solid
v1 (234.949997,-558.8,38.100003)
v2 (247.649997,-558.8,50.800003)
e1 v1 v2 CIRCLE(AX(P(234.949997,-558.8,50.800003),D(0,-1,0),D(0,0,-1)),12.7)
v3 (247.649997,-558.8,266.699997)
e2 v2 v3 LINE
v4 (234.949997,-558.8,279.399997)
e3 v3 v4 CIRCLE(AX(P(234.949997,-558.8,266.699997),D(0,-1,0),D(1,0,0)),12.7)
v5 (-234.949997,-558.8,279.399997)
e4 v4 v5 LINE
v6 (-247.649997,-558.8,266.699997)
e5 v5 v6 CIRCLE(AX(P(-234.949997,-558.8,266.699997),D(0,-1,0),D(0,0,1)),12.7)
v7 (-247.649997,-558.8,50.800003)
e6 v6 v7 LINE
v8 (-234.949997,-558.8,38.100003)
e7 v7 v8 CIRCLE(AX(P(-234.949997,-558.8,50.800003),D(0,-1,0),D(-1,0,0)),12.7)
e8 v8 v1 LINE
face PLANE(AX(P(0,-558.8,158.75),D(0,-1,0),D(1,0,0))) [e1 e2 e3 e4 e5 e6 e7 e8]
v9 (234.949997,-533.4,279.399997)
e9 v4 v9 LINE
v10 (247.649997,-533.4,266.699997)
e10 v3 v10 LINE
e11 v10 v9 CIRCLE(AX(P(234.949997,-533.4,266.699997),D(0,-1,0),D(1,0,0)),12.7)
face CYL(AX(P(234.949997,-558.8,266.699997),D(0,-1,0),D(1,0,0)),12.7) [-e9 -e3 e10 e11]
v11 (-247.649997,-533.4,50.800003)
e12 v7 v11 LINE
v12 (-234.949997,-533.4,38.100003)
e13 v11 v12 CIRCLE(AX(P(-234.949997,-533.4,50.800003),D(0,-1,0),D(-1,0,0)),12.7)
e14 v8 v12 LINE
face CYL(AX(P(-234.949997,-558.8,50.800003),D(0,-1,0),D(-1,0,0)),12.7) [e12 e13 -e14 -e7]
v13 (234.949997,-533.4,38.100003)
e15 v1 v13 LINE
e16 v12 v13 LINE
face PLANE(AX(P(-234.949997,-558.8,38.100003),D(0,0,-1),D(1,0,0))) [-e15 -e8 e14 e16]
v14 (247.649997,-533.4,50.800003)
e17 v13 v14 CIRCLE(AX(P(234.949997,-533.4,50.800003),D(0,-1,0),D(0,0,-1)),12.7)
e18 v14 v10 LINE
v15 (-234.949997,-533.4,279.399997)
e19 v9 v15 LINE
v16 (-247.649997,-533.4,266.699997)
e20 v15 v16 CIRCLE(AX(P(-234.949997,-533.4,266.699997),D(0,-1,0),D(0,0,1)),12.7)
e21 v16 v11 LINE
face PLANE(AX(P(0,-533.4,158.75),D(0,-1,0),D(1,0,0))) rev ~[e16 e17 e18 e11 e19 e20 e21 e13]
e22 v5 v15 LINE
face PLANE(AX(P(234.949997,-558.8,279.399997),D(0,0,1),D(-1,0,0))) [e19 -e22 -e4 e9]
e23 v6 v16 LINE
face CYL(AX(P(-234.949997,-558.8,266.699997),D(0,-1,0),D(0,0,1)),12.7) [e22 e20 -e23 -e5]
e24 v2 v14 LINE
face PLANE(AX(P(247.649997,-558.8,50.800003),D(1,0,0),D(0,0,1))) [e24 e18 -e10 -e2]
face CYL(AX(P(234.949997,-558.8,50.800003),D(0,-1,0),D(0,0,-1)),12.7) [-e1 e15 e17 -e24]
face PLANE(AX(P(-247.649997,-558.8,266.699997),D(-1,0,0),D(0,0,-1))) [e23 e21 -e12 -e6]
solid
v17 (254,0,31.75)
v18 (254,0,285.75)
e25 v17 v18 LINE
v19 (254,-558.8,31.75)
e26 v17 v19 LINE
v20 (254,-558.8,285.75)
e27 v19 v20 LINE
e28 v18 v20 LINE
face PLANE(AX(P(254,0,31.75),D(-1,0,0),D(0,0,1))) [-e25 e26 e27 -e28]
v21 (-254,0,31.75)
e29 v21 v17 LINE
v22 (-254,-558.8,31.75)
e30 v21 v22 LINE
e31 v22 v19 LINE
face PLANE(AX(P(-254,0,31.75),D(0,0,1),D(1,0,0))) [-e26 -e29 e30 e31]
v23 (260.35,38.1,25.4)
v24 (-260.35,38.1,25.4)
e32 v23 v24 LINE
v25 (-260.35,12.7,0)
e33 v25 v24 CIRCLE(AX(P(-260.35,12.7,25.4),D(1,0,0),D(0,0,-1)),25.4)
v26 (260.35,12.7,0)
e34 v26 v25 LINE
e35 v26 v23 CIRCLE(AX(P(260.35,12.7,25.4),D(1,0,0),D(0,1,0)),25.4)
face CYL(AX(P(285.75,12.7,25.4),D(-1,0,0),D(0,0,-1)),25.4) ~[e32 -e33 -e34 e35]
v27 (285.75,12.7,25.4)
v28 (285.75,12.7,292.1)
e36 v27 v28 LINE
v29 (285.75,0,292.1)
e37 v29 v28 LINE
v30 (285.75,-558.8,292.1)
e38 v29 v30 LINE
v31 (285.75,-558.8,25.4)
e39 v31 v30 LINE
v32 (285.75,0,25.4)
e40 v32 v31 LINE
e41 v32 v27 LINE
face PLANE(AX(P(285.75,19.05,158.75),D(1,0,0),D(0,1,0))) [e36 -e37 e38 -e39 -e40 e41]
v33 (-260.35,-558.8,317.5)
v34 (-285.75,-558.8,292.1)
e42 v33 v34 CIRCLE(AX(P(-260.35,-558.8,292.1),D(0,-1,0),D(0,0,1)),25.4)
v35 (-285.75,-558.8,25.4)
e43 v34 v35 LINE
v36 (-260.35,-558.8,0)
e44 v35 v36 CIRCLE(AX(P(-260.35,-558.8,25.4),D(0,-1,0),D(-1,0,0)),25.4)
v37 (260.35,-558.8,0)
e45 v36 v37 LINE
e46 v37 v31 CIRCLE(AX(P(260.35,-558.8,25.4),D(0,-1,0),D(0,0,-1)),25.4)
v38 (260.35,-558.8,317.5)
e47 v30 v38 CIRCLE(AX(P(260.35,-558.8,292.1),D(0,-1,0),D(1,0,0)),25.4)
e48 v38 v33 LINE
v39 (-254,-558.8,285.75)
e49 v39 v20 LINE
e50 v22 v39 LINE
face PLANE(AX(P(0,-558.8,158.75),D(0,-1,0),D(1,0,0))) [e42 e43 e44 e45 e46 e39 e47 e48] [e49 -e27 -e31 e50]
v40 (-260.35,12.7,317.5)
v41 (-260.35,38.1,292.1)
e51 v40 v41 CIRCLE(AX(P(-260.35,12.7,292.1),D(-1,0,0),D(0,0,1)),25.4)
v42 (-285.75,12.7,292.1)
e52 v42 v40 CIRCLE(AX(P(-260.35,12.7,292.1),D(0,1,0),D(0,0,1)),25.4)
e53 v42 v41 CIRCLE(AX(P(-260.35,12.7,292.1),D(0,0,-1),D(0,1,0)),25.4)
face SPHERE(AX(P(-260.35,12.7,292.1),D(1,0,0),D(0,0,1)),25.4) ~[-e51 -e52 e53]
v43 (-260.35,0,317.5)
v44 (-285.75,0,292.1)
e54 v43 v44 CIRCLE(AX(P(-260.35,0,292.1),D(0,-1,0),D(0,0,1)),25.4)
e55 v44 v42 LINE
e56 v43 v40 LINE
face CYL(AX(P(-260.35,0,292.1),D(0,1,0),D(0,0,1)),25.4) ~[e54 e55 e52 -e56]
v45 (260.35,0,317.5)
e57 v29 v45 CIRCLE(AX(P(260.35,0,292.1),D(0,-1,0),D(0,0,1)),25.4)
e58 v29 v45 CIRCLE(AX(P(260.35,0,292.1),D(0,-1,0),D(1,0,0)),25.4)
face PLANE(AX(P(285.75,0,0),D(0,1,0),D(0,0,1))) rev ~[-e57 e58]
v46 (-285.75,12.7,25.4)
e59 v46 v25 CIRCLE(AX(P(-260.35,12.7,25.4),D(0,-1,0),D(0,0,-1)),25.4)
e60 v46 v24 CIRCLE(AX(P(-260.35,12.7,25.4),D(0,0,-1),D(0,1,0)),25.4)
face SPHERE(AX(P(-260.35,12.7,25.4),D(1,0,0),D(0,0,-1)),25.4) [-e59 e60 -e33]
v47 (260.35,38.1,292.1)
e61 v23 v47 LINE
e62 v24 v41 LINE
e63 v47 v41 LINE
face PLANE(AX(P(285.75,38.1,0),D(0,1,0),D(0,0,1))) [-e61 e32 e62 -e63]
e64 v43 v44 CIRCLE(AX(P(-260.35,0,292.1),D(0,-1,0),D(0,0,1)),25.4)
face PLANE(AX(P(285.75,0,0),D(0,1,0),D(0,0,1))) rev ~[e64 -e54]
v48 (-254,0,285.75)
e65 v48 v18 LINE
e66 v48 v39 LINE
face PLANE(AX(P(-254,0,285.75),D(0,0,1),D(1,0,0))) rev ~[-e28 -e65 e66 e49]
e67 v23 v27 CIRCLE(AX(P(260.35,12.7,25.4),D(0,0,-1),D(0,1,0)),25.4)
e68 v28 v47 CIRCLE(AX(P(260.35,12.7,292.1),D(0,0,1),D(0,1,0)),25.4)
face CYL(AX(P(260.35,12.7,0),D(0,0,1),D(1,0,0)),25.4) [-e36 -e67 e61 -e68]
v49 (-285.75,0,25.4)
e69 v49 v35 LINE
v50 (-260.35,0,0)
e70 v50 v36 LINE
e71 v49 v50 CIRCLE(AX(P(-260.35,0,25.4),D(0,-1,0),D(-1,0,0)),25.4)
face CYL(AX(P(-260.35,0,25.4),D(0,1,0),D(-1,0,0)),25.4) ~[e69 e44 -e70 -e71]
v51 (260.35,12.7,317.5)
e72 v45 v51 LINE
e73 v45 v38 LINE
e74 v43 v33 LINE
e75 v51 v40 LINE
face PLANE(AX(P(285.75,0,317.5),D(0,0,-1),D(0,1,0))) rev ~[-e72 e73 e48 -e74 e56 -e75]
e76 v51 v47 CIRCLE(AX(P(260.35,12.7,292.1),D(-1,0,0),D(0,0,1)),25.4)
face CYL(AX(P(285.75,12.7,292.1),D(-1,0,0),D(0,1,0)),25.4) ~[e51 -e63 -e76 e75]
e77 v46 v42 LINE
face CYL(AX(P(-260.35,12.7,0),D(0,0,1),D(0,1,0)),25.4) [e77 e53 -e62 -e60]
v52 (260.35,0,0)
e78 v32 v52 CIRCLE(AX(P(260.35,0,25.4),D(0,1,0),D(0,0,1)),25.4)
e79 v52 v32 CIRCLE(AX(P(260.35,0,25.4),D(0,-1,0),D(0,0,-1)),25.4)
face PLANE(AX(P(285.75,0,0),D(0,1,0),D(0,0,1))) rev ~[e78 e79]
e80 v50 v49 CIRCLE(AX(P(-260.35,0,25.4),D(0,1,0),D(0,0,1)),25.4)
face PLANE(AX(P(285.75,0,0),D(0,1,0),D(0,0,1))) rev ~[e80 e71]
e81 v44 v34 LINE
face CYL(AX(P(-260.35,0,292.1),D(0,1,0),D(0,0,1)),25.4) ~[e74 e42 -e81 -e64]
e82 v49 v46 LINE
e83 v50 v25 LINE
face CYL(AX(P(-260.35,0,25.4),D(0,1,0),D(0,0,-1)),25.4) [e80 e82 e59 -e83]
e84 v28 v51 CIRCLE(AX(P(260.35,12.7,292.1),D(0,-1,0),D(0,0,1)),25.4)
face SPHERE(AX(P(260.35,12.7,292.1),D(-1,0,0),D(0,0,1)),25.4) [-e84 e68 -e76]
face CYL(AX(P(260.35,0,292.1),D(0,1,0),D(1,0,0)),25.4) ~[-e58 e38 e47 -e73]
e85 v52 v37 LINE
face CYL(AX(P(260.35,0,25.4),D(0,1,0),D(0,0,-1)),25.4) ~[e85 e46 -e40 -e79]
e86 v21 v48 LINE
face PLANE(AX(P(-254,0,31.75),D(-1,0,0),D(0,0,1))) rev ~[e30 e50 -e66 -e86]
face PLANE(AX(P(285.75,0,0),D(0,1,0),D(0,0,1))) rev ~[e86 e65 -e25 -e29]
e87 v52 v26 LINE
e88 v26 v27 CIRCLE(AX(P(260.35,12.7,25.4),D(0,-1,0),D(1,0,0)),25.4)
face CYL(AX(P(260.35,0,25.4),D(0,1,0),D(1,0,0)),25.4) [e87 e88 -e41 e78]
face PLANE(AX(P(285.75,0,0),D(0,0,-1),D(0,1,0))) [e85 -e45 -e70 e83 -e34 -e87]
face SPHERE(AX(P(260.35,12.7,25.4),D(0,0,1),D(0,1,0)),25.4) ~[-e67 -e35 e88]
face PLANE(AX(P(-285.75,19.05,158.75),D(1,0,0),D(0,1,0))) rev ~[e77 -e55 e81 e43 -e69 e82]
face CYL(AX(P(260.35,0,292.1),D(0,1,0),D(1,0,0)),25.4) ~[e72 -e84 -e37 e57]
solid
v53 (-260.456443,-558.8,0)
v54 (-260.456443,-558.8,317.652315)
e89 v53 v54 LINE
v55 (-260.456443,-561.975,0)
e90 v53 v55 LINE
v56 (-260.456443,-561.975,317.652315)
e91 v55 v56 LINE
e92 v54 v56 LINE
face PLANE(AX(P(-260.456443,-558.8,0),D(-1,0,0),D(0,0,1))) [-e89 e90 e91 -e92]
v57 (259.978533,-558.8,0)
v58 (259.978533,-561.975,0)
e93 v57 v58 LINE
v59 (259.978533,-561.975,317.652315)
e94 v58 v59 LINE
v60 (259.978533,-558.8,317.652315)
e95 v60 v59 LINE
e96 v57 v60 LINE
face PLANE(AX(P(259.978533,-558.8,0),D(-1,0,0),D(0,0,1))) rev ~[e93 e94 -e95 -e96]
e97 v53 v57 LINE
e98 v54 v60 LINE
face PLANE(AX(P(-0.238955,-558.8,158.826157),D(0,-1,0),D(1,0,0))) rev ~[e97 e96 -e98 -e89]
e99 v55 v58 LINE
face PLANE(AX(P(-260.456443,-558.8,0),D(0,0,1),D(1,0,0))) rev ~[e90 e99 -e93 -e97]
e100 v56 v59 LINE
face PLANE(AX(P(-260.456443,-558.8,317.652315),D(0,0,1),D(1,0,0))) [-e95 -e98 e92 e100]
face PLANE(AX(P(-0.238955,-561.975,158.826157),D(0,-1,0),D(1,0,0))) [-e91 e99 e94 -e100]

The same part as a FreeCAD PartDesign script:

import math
import FreeCAD as App
import Part
import Sketcher
from FreeCAD import Vector
Q = App.Units.Quantity


def edges_at(feature, points):
    """Names of the edges that pass closest to the given points."""
    edges = feature.Shape.Edges
    near = lambda p: min(range(len(edges)), key=lambda i: edges[i].distToShape(Part.Vertex(*p))[0])
    return sorted({f"Edge{near(p) + 1}" for p in points})


def add_polygon(sketch, points):
    """Adds a closed chain of lines whose ends are joined by coincident constraints."""
    first, n = sketch.GeometryCount, len(points)
    for a, b in zip(points, points[1:] + points[:1]):
        sketch.addGeometry(Part.LineSegment(App.Vector(*a, 0), App.Vector(*b, 0)), False)
    for i in range(n):
        sketch.addConstraint(Sketcher.Constraint("Coincident", first + i, 2, first + (i + 1) % n, 1))

doc = App.newDocument("Part")
params = doc.addObject("Spreadsheet::Sheet", "Params")
for row, (alias, value) in enumerate([
    ("sketch1_radius", "1 in"),
    ("sketch1_width", "20 in"),
    ("sketch1_height", "10 in"),
    ("sketch1_width2", "20.5 in"),
    ("sketch1_height2", "10.5 in"),
    ("pad1_length", "22 in"),
    ("sketch2_width", "1.5 in"),
    ("sketch2_height", "12.5 in"),
    ("pad2_length", "22.5 in"),
    ("fillet_radius", "1 in"),
    ("sketch3_radius", "0.5 in"),
    ("sketch3_width", "18.4999998 in"),
    ("sketch3_height", "8.4999998 in"),
    ("pad3_length", "1 in"),
    ("pad4_length", "0.125 in"),
], start=1):
    params.set(f"A{row}", alias)
    params.set(f"B{row}", "=" + value)
    params.setAlias(f"B{row}", alias)

body = doc.addObject("PartDesign::Body", "Body")

# Sketch on XZ plane
sketch1 = doc.addObject("Sketcher::SketchObject", "Sketch")
body.addObject(sketch1)
sketch1.AttachmentSupport = (doc.XZ_Plane, [""])
sketch1.MapMode = "FlatFace"
sketch1.addGeometry(Part.ArcOfCircle(Part.Circle(Vector(260.35, 292.1, 0), Vector(0, 0, 1), 25.4), math.radians(0), math.radians(90)), False)  # 0
sketch1.addGeometry(Part.LineSegment(Vector(260.35, 317.5, 0), Vector(-260.35, 317.5, 0)), False)  # 1
sketch1.addGeometry(Part.ArcOfCircle(Part.Circle(Vector(-260.35, 292.1, 0), Vector(0, 0, 1), 25.4), math.radians(90), math.radians(180)), False)  # 2
sketch1.addGeometry(Part.LineSegment(Vector(-285.75, 292.1, 0), Vector(-285.75, 25.4, 0)), False)  # 3
sketch1.addGeometry(Part.ArcOfCircle(Part.Circle(Vector(-260.35, 25.4, 0), Vector(0, 0, 1), 25.4), math.radians(180), math.radians(270)), False)  # 4
sketch1.addGeometry(Part.LineSegment(Vector(-260.35, 0, 0), Vector(260.35, 0, 0)), False)  # 5
sketch1.addGeometry(Part.ArcOfCircle(Part.Circle(Vector(260.35, 25.4, 0), Vector(0, 0, 1), 25.4), math.radians(-90), math.radians(0)), False)  # 6
sketch1.addGeometry(Part.LineSegment(Vector(285.75, 25.4, 0), Vector(285.75, 292.1, 0)), False)  # 7
add_polygon(sketch1, [(254, 31.75), (-254, 31.75), (-254, 285.75), (254, 285.75)])  # lines 8-11
sketch1.addConstraint([
    Sketcher.Constraint("Tangent", 0, 2, 1, 1),
    Sketcher.Constraint("Tangent", 1, 2, 2, 1),
    Sketcher.Constraint("Tangent", 2, 2, 3, 1),
    Sketcher.Constraint("Tangent", 3, 2, 4, 1),
    Sketcher.Constraint("Tangent", 4, 2, 5, 1),
    Sketcher.Constraint("Tangent", 5, 2, 6, 1),
    Sketcher.Constraint("Tangent", 6, 2, 7, 1),
    Sketcher.Constraint("Tangent", 7, 2, 0, 1),
    Sketcher.Constraint("Horizontal", 1),
    Sketcher.Constraint("Vertical", 3),
    Sketcher.Constraint("Horizontal", 5),
    Sketcher.Constraint("Vertical", 7),
    Sketcher.Constraint("Horizontal", 8),
    Sketcher.Constraint("Vertical", 9),
    Sketcher.Constraint("Horizontal", 10),
    Sketcher.Constraint("Vertical", 11),
    Sketcher.Constraint("Equal", 0, 2),
    Sketcher.Constraint("Equal", 2, 4),
    Sketcher.Constraint("Equal", 4, 6),
    Sketcher.Constraint("Symmetric", 4, 2, 5, 2, -1, 1),
    Sketcher.Constraint("Radius", 0, Q("1 in")),
    Sketcher.Constraint("DistanceX", 8, 2, 8, 1, Q("20 in")),
    Sketcher.Constraint("DistanceY", 9, 1, 9, 2, Q("10 in")),
    Sketcher.Constraint("DistanceX", 1, 2, 1, 1, Q("20.5 in")),
    Sketcher.Constraint("DistanceY", 3, 2, 3, 1, Q("10.5 in")),
    Sketcher.Constraint("DistanceX", 8, 2, -1, 1, Q("10 in")),
    Sketcher.Constraint("DistanceY", -1, 1, 8, 2, Q("1.25 in")),
])
sketch1.setExpression("Constraints[24]", "Params.sketch1_radius")
sketch1.setExpression("Constraints[25]", "Params.sketch1_width")
sketch1.setExpression("Constraints[26]", "Params.sketch1_height")
sketch1.setExpression("Constraints[27]", "Params.sketch1_width2")
sketch1.setExpression("Constraints[28]", "Params.sketch1_height2")
pad1 = doc.addObject("PartDesign::Pad", "Pad")
body.addObject(pad1)
pad1.Profile = sketch1
pad1.setExpression("Length", "Params.pad1_length")

# Sketch on YZ plane
sketch2 = doc.addObject("Sketcher::SketchObject", "Sketch001")
body.addObject(sketch2)
sketch2.AttachmentSupport = (doc.YZ_Plane, [""])
sketch2.MapMode = "FlatFace"
sketch2.AttachmentOffset = App.Placement(Vector(0, 0, 11.25 * 25.4), App.Rotation())
add_polygon(sketch2, [(0, 317.5), (0, 0), (38.1, 0), (38.1, 317.5)])  # lines 0-3
sketch2.addConstraint([
    Sketcher.Constraint("Vertical", 0),
    Sketcher.Constraint("Horizontal", 1),
    Sketcher.Constraint("Vertical", 2),
    Sketcher.Constraint("Horizontal", 3),
    Sketcher.Constraint("Coincident", 0, 2, -1, 1),
    Sketcher.Constraint("DistanceX", 1, 1, 1, 2, Q("1.5 in")),
    Sketcher.Constraint("DistanceY", 0, 2, 0, 1, Q("12.5 in")),
])
sketch2.setExpression("Constraints[9]", "Params.sketch2_width")
sketch2.setExpression("Constraints[10]", "Params.sketch2_height")
pad2 = doc.addObject("PartDesign::Pad", "Pad001")
body.addObject(pad2)
pad2.Profile = sketch2
pad2.setExpression("Length", "Params.pad2_length")
pad2.Reversed = True
doc.recompute()

fillet = doc.addObject("PartDesign::Fillet", "Fillet")
body.addObject(fillet)
fillet.Base = (pad2, edges_at(pad2, [
    (0, 38.1, 317.5),
    (285.75, 19.05, 317.5),
    (285.75, 38.1, 158.75),
    (-285.75, 19.05, 317.5),
    (0, 38.1, 0),
    (-285.75, 19.05, 0),
    (-285.75, 38.1, 158.75),
    (285.75, 19.05, 0),
]))
fillet.setExpression("Radius", "Params.fillet_radius")
body2 = doc.addObject("PartDesign::Body", "Body001")

# Sketch on XZ plane
sketch3 = doc.addObject("Sketcher::SketchObject", "Sketch002")
body2.addObject(sketch3)
sketch3.AttachmentSupport = (doc.getObject("XZ_Plane001"), [""])
sketch3.MapMode = "FlatFace"
sketch3.AttachmentOffset = App.Placement(Vector(0, 0, 22 * 25.4), App.Rotation())
sketch3.addGeometry([
    Part.LineSegment(Vector(-247.649997, 266.699997, 0), Vector(-247.649997, 50.800003, 0)),  # 0
    Part.ArcOfCircle(Part.Circle(Vector(-234.949997, 50.800003, 0), Vector(0, 0, 1), 12.7), math.radians(180), math.radians(270)),  # 1
    Part.LineSegment(Vector(-234.949997, 38.100003, 0), Vector(234.949997, 38.100003, 0)),  # 2
    Part.ArcOfCircle(Part.Circle(Vector(234.949997, 50.800003, 0), Vector(0, 0, 1), 12.7), math.radians(-90), math.radians(0)),  # 3
    Part.LineSegment(Vector(247.649997, 50.800003, 0), Vector(247.649997, 266.699997, 0)),  # 4
    Part.ArcOfCircle(Part.Circle(Vector(234.949997, 266.699997, 0), Vector(0, 0, 1), 12.7), math.radians(0), math.radians(90)),  # 5
    Part.LineSegment(Vector(234.949997, 279.399997, 0), Vector(-234.949997, 279.399997, 0)),  # 6
    Part.ArcOfCircle(Part.Circle(Vector(-234.949997, 266.699997, 0), Vector(0, 0, 1), 12.7), math.radians(90), math.radians(180)),  # 7
], False)
sketch3.addConstraint([
    Sketcher.Constraint("Tangent", 0, 2, 1, 1),
    Sketcher.Constraint("Tangent", 1, 2, 2, 1),
    Sketcher.Constraint("Tangent", 2, 2, 3, 1),
    Sketcher.Constraint("Tangent", 3, 2, 4, 1),
    Sketcher.Constraint("Tangent", 4, 2, 5, 1),
    Sketcher.Constraint("Tangent", 5, 2, 6, 1),
    Sketcher.Constraint("Tangent", 6, 2, 7, 1),
    Sketcher.Constraint("Tangent", 7, 2, 0, 1),
    Sketcher.Constraint("Vertical", 0),
    Sketcher.Constraint("Horizontal", 2),
    Sketcher.Constraint("Vertical", 4),
    Sketcher.Constraint("Horizontal", 6),
    Sketcher.Constraint("Equal", 1, 3),
    Sketcher.Constraint("Equal", 3, 5),
    Sketcher.Constraint("Equal", 5, 7),
    Sketcher.Constraint("Radius", 1, Q("0.5 in")),
    Sketcher.Constraint("DistanceX", 2, 1, 2, 2, Q("18.4999998 in")),
    Sketcher.Constraint("DistanceY", 0, 2, 0, 1, Q("8.4999998 in")),
    Sketcher.Constraint("DistanceY", -1, 1, 1, 3, Q("2.0000001 in")),
    Sketcher.Constraint("DistanceX", 1, 3, -1, 1, Q("9.2499999 in")),
])
sketch3.setExpression("Constraints[15]", "Params.sketch3_radius")
sketch3.setExpression("Constraints[16]", "Params.sketch3_width")
sketch3.setExpression("Constraints[17]", "Params.sketch3_height")
pad3 = doc.addObject("PartDesign::Pad", "Pad002")
body2.addObject(pad3)
pad3.Profile = sketch3
pad3.setExpression("Length", "Params.pad3_length")
pad3.Reversed = True
body3 = doc.addObject("PartDesign::Body", "Body002")

# Sketch on XZ plane
sketch4 = doc.addObject("Sketcher::SketchObject", "Sketch003")
body3.addObject(sketch4)
sketch4.AttachmentSupport = (doc.getObject("XZ_Plane002"), [""])
sketch4.MapMode = "FlatFace"
sketch4.AttachmentOffset = App.Placement(Vector(0, 0, 22 * 25.4), App.Rotation())
add_polygon(sketch4, [(-260.456443, 317.652315), (-260.456443, 0), (259.978533, 0), (259.978533, 317.652315)])  # lines 0-3
sketch4.addConstraint([
    Sketcher.Constraint("Vertical", 0),
    Sketcher.Constraint("Horizontal", 1),
    Sketcher.Constraint("Vertical", 2),
    Sketcher.Constraint("Horizontal", 3),
    Sketcher.Constraint("PointOnObject", 0, 2, -1),
    Sketcher.Constraint("DistanceX", 1, 1, 1, 2, 520.434976),
    Sketcher.Constraint("DistanceY", 0, 2, 0, 1, 317.652315),
    Sketcher.Constraint("DistanceX", 0, 2, -1, 1, 260.456443),
])
pad4 = doc.addObject("PartDesign::Pad", "Pad003")
body3.addObject(pad4)
pad4.Profile = sketch4
pad4.setExpression("Length", "Params.pad4_length")

doc.recompute()
